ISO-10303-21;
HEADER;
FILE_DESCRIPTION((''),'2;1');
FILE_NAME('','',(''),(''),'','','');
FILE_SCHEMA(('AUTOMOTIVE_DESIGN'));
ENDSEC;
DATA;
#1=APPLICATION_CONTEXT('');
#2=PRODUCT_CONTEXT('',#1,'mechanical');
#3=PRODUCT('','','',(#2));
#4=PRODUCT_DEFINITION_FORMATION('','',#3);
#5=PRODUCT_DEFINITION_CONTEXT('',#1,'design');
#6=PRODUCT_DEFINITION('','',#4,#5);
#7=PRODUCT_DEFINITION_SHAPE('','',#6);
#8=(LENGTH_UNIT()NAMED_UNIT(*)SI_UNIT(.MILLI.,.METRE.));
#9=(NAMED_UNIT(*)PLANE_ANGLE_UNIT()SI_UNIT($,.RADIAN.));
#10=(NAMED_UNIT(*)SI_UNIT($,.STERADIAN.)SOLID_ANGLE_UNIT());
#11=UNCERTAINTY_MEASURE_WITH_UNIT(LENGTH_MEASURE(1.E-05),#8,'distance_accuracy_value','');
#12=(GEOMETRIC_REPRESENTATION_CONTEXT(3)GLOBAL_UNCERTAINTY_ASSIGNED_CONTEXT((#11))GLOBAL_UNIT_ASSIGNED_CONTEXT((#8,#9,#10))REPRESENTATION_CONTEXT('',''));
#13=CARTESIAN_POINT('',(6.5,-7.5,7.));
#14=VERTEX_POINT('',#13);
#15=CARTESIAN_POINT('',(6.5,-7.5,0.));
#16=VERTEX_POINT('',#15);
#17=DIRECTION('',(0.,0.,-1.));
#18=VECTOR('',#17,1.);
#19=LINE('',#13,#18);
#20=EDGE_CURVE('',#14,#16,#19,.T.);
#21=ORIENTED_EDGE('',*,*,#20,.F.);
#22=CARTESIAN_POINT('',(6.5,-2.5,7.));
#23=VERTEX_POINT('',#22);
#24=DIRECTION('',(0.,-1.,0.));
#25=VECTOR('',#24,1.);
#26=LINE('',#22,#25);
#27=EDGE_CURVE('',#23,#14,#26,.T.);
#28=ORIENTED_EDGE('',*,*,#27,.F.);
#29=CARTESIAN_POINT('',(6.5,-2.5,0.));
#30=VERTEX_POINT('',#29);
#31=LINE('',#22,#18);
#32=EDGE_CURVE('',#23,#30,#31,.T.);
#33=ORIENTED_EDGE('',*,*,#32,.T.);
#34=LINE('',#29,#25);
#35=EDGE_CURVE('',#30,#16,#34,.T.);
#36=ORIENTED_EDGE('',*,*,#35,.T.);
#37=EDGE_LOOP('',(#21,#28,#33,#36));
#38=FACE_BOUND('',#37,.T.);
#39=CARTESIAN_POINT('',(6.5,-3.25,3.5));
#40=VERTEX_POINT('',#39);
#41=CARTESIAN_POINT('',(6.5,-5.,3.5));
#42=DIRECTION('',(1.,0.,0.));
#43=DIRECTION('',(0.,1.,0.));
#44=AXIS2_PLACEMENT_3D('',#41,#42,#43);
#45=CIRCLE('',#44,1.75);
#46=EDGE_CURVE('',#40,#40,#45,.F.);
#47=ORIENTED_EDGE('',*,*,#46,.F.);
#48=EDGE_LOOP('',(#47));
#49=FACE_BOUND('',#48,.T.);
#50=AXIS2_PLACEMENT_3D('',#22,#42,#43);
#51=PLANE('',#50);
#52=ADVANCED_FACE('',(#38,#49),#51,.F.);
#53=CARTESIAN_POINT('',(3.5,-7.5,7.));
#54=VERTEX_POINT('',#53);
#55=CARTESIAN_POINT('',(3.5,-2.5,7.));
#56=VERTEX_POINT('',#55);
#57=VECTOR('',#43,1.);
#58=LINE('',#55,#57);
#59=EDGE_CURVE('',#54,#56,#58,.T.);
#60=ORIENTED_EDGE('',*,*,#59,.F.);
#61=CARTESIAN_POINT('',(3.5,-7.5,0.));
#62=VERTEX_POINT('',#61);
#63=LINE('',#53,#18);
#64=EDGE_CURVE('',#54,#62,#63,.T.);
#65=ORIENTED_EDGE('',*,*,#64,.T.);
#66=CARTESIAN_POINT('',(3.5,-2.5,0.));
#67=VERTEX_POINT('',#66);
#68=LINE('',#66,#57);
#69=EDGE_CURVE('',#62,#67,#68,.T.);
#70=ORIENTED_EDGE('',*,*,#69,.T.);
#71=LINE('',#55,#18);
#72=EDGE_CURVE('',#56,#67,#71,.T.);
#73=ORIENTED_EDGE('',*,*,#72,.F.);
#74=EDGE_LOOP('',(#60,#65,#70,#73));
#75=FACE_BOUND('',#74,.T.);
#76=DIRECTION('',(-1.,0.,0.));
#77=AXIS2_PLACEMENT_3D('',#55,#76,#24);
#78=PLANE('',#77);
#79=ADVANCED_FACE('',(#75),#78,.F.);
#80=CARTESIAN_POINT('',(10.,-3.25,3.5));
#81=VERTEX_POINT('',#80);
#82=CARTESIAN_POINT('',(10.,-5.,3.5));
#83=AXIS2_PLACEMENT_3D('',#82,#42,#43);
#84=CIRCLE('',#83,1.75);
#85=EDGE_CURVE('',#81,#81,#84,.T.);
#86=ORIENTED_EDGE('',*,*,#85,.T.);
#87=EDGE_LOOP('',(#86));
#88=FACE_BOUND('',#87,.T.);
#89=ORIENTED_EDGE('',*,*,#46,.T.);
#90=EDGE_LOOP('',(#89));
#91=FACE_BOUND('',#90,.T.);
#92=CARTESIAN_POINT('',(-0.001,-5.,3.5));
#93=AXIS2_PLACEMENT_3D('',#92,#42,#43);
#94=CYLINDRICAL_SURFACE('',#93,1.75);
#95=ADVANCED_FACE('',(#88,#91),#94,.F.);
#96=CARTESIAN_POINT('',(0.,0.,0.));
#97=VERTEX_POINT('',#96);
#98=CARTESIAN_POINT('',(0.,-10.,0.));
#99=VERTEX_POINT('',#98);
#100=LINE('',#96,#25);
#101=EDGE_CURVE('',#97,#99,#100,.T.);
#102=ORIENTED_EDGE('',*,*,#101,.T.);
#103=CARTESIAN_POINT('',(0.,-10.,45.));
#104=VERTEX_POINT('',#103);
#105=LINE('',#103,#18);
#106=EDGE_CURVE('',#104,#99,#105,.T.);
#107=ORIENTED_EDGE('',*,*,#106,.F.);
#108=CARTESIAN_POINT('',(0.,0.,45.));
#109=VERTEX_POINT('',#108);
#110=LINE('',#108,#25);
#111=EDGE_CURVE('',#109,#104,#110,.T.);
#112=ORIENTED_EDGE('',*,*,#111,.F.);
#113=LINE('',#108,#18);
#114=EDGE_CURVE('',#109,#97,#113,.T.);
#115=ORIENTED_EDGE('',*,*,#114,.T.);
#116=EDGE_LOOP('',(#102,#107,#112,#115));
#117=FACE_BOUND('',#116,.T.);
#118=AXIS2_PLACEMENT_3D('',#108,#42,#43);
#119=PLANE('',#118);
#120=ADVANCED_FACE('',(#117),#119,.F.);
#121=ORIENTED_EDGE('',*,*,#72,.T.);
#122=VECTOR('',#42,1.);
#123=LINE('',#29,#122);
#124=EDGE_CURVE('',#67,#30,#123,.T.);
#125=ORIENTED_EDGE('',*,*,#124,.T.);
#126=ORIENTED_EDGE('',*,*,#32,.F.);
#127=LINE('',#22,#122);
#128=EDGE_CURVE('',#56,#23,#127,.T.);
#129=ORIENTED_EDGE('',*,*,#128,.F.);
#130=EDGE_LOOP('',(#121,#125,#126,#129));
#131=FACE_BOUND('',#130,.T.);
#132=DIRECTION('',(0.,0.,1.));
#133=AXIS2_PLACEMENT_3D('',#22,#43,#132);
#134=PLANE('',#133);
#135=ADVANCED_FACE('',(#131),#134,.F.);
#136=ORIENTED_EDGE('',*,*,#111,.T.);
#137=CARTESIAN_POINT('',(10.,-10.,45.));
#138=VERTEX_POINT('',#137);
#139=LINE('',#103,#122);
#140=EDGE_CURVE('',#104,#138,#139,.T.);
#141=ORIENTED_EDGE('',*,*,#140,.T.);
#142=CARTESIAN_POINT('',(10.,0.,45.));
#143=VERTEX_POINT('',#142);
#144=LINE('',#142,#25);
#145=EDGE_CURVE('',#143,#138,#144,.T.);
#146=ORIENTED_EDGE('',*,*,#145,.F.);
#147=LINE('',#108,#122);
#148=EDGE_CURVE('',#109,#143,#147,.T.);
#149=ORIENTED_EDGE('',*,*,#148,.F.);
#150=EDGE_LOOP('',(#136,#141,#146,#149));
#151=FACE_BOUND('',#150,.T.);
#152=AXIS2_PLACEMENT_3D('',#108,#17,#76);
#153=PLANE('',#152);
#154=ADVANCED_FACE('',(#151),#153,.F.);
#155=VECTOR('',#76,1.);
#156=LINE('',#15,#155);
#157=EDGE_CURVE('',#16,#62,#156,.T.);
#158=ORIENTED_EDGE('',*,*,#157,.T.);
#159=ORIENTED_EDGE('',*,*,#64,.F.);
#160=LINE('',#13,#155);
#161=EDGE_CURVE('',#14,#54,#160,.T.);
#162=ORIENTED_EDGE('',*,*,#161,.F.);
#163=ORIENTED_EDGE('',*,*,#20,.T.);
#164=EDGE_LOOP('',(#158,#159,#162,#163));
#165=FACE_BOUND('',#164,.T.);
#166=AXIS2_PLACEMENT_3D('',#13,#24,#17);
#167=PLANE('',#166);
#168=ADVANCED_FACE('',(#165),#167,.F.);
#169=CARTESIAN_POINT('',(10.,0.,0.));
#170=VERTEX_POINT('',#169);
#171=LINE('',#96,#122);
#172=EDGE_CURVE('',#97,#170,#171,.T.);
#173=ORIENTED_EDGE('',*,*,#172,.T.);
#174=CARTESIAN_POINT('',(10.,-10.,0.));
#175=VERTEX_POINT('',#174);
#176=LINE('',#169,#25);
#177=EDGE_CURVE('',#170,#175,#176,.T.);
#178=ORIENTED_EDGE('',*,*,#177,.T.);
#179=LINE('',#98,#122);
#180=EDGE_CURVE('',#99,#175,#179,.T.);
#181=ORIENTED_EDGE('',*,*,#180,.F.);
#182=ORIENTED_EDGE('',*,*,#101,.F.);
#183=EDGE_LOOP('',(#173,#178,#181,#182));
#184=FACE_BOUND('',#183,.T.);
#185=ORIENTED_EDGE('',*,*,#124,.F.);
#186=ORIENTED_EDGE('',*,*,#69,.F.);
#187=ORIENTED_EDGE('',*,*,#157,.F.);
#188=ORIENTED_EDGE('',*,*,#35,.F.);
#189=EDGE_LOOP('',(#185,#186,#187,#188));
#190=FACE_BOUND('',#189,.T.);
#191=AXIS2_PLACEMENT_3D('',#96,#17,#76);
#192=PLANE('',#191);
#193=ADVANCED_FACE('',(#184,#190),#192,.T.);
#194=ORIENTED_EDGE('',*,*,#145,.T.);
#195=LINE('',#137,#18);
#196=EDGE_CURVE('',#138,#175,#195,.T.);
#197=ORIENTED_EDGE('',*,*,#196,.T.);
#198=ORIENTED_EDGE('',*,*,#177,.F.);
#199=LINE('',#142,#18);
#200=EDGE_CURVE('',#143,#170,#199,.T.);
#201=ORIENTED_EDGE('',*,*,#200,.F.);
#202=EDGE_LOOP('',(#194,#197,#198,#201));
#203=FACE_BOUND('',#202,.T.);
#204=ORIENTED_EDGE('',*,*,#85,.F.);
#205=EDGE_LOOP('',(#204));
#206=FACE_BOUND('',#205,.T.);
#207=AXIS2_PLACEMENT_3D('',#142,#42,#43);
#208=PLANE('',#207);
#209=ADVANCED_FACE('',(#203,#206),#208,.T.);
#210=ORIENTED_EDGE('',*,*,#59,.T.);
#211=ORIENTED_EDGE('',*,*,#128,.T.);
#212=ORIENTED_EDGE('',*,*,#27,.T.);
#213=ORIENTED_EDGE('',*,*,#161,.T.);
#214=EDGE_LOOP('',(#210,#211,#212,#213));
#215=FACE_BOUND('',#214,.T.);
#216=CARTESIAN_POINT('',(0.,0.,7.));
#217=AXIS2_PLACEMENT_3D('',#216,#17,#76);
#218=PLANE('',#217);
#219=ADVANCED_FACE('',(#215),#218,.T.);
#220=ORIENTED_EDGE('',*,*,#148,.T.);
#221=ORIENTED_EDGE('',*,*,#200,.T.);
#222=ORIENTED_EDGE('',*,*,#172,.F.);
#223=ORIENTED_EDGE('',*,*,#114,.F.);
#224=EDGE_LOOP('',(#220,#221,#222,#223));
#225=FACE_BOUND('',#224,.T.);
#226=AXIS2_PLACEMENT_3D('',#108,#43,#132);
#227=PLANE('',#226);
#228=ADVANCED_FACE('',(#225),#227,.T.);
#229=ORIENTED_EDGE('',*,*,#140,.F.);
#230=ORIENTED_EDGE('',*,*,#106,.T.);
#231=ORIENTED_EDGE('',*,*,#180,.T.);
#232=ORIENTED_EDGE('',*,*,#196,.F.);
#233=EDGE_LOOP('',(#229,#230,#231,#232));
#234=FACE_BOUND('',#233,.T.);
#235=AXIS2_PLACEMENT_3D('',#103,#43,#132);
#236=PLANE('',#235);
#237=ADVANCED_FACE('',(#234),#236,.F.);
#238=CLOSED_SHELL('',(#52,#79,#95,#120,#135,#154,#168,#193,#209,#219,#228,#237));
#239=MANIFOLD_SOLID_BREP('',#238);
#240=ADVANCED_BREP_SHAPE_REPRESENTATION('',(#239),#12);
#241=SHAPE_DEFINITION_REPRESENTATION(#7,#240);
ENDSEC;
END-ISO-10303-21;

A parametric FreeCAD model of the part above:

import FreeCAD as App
import Part
import Sketcher
from FreeCAD import Vector
Q = App.Units.Quantity


def add_polygon(sketch, points):
    """Adds a closed chain of lines whose ends are joined by coincident constraints."""
    first, n = sketch.GeometryCount, len(points)
    for a, b in zip(points, points[1:] + points[:1]):
        sketch.addGeometry(Part.LineSegment(App.Vector(*a, 0), App.Vector(*b, 0)), False)
    for i in range(n):
        sketch.addConstraint(Sketcher.Constraint("Coincident", first + i, 2, first + (i + 1) % n, 1))

doc = App.newDocument("Part")
params = doc.addObject("Spreadsheet::Sheet", "Params")
for row, (alias, value) in enumerate([
    ("sketch1_width", "10 mm"),
    ("pad1_length", "45 mm"),
    ("sketch2_width", "3 mm"),
    ("sketch2_height", "5 mm"),
    ("pocket1_length", "7 mm"),
    ("sketch3_diameter", "3.5 mm"),
], start=1):
    params.set(f"A{row}", alias)
    params.set(f"B{row}", "=" + value)
    params.setAlias(f"B{row}", alias)

body = doc.addObject("PartDesign::Body", "Body")

# Sketch on XY plane
sketch1 = doc.addObject("Sketcher::SketchObject", "Sketch")
body.addObject(sketch1)
sketch1.AttachmentSupport = (doc.XY_Plane, [""])
sketch1.MapMode = "FlatFace"
add_polygon(sketch1, [(0, 0), (0, -10), (10, -10), (10, 0)])  # lines 0-3
sketch1.addConstraint(Sketcher.Constraint("Vertical", 0))
sketch1.addConstraint(Sketcher.Constraint("Horizontal", 1))
sketch1.addConstraint(Sketcher.Constraint("Vertical", 2))
sketch1.addConstraint(Sketcher.Constraint("Horizontal", 3))
sketch1.addConstraint(Sketcher.Constraint("Coincident", 3, 2, -1, 1))
sketch1.addConstraint(Sketcher.Constraint("Equal", 3, 0))
sketch1.addConstraint(Sketcher.Constraint("DistanceX", 1, 1, 1, 2, Q("10 mm")))
sketch1.setExpression("Constraints[10]", "Params.sketch1_width")
pad1 = doc.addObject("PartDesign::Pad", "Pad")
body.addObject(pad1)
pad1.Profile = sketch1
pad1.setExpression("Length", "Params.pad1_length")

# Sketch on XY plane
sketch2 = doc.addObject("Sketcher::SketchObject", "Sketch001")
body.addObject(sketch2)
sketch2.AttachmentSupport = (doc.XY_Plane, [""])
sketch2.MapMode = "FlatFace"
add_polygon(sketch2, [(6.5, -2.5), (6.5, -7.5), (3.5, -7.5), (3.5, -2.5)])  # lines 0-3
sketch2.addConstraint(Sketcher.Constraint("Vertical", 0))
sketch2.addConstraint(Sketcher.Constraint("Horizontal", 1))
sketch2.addConstraint(Sketcher.Constraint("Vertical", 2))
sketch2.addConstraint(Sketcher.Constraint("Horizontal", 3))
sketch2.addConstraint(Sketcher.Constraint("DistanceX", 1, 2, 1, 1, Q("3 mm")))
sketch2.addConstraint(Sketcher.Constraint("DistanceY", 0, 2, 0, 1, Q("5 mm")))
sketch2.addConstraint(Sketcher.Constraint("DistanceX", -1, 1, 0, 2, Q("6.5 mm")))
sketch2.addConstraint(Sketcher.Constraint("DistanceY", 0, 2, -1, 1, Q("7.5 mm")))
sketch2.setExpression("Constraints[8]", "Params.sketch2_width")
sketch2.setExpression("Constraints[9]", "Params.sketch2_height")
pocket1 = doc.addObject("PartDesign::Pocket", "Pocket")
body.addObject(pocket1)
pocket1.Profile = sketch2
pocket1.setExpression("Length", "Params.pocket1_length")
pocket1.Reversed = True

# Sketch on YZ plane
sketch3 = doc.addObject("Sketcher::SketchObject", "Sketch002")
body.addObject(sketch3)
sketch3.AttachmentSupport = (doc.YZ_Plane, [""])
sketch3.MapMode = "FlatFace"
sketch3.AttachmentOffset = App.Placement(Vector(0, 0, 10), App.Rotation())
sketch3.addGeometry(Part.Circle(Vector(-5, 3.5, 0), Vector(0, 0, 1), 1.8), False)
sketch3.addConstraint(Sketcher.Constraint("Diameter", 0, Q("3.5 mm")))
sketch3.addConstraint(Sketcher.Constraint("DistanceX", 0, 3, -1, 1, Q("5 mm")))
sketch3.addConstraint(Sketcher.Constraint("DistanceY", -1, 1, 0, 3, Q("3.5 mm")))
sketch3.setExpression("Constraints[0]", "Params.sketch3_diameter")
pocket2 = doc.addObject("PartDesign::Pocket", "Pocket001")
body.addObject(pocket2)
pocket2.Profile = sketch3
pocket2.Type = "UpToFirst"

doc.recompute()
